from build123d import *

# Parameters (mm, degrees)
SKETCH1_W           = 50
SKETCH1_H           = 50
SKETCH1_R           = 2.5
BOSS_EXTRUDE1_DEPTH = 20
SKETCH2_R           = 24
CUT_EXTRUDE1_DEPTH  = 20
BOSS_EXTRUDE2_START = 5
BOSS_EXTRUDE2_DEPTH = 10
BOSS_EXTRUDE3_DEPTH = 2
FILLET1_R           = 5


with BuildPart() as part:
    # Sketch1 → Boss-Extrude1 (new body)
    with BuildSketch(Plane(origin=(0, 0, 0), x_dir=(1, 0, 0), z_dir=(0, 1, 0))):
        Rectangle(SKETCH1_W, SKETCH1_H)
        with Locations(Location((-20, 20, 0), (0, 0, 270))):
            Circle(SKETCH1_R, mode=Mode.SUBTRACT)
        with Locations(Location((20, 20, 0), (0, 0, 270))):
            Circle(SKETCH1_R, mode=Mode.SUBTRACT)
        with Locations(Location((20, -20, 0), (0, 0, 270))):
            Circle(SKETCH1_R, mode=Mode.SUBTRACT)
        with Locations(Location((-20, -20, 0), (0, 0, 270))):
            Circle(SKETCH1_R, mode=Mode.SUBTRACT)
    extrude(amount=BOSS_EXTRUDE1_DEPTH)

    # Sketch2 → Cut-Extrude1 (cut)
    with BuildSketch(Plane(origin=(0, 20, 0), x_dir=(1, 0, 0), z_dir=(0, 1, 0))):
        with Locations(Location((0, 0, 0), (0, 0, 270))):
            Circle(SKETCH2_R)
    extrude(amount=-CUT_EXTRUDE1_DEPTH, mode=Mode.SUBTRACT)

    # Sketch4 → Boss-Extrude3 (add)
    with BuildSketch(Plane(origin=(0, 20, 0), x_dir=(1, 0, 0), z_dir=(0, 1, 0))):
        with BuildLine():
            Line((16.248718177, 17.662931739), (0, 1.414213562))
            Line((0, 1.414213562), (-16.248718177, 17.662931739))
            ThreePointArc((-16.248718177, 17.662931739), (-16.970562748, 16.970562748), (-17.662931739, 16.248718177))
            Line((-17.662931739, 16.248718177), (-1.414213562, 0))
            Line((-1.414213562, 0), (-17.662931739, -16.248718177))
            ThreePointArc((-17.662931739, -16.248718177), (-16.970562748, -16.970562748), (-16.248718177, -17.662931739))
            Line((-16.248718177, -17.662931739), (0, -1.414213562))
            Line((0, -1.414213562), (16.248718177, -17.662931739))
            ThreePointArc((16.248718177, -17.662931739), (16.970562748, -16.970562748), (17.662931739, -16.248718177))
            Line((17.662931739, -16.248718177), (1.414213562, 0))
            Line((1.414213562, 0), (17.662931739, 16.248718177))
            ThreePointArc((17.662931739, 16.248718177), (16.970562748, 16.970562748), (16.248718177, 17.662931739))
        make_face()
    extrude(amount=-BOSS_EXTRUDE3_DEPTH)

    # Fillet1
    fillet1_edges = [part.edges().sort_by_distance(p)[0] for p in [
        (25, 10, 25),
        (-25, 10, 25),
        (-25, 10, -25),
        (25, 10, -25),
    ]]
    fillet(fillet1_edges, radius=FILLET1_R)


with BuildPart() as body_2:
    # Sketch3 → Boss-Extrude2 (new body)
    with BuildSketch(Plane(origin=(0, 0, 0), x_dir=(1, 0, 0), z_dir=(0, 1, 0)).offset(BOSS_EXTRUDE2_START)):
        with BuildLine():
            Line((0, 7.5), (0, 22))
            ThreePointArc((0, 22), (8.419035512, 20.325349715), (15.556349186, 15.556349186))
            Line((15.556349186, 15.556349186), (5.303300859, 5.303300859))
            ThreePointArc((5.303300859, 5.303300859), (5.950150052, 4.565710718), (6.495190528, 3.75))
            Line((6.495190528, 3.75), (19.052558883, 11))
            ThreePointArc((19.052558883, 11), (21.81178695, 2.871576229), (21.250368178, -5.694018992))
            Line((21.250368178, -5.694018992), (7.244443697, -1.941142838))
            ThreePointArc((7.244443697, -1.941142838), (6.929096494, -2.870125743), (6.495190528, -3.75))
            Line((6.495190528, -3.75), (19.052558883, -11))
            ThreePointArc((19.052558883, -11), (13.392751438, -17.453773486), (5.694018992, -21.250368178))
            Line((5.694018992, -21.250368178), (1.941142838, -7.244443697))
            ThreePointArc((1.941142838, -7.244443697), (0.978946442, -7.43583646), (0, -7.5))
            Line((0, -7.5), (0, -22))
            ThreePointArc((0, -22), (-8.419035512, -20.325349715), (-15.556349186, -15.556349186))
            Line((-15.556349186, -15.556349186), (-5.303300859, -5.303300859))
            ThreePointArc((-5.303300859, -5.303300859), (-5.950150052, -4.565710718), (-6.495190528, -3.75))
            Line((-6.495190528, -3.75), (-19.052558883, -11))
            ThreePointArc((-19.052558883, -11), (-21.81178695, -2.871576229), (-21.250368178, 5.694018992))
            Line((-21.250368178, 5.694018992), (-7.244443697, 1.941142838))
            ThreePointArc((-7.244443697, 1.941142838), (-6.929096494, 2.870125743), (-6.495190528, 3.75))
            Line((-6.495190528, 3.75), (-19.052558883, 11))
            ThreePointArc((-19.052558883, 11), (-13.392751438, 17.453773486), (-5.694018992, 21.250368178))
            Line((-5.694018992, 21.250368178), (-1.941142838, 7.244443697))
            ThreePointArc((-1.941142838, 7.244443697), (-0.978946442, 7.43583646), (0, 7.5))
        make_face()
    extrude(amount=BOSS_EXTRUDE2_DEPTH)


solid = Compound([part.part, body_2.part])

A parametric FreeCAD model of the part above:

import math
import FreeCAD as App
import Part
import Sketcher

V = App.Vector
Q = App.Units.Quantity


def edges_at(feature, points):
    """Names of the edges that pass closest to the given points."""
    edges = feature.Shape.Edges
    near = lambda p: min(range(len(edges)), key=lambda i: edges[i].distToShape(Part.Vertex(*p))[0])
    return sorted({f"Edge{near(p) + 1}" for p in points})


def add_polygon(sketch, points):
    """Adds a closed chain of lines whose ends are joined by coincident constraints."""
    first, n = sketch.GeometryCount, len(points)
    for a, b in zip(points, points[1:] + points[:1]):
        sketch.addGeometry(Part.LineSegment(App.Vector(*a, 0), App.Vector(*b, 0)), False)
    for i in range(n):
        sketch.addConstraint(Sketcher.Constraint("Coincident", first + i, 2, first + (i + 1) % n, 1))

doc = App.newDocument("Part")
params = doc.addObject("Spreadsheet::Sheet", "Params")
for row, (alias, value) in enumerate([
    ("sketch1_diameter", "5 mm"),
    ("sketch1_width", "50 mm"),
    ("pad1_length", "20 mm"),
    ("sketch2_diameter", "48 mm"),
    ("pocket1_length", "20 mm"),
    ("sketch3_radius", "24.000001 mm"),
    ("pad2_length", "2 mm"),
    ("fillet_radius", "5 mm"),
    ("sketch4_radius", "22 mm"),
    ("sketch4_radius2", "7.5 mm"),
    ("pad3_length", "10 mm"),
], start=1):
    params.set(f"A{row}", alias)
    params.set(f"B{row}", "=" + value)
    params.setAlias(f"B{row}", alias)

body = doc.addObject("PartDesign::Body", "Body")

# Sketch on XZ plane
sketch1 = body.newObject("Sketcher::SketchObject", "Sketch")
sketch1.AttachmentSupport = (doc.getObject("XZ_Plane"), [""])
sketch1.MapMode = "FlatFace"
add_polygon(sketch1, [(-25, -25), (-25, 25), (25, 25), (25, -25)])  # lines 0-3
sketch1.addGeometry(Part.Circle(V(-20, 20, 0), V(0, 0, 1), 2.5), False)  # 4
sketch1.addGeometry(Part.Circle(V(20, 20, 0), V(0, 0, 1), 2.5), False)  # 5
sketch1.addGeometry(Part.Circle(V(-20, -20, 0), V(0, 0, 1), 2.5), False)  # 6
sketch1.addGeometry(Part.Circle(V(20, -20, 0), V(0, 0, 1), 2.5), False)  # 7
sketch1.addConstraint([
    Sketcher.Constraint("Vertical", 0),
    Sketcher.Constraint("Horizontal", 1),
    Sketcher.Constraint("Vertical", 2),
    Sketcher.Constraint("Horizontal", 3),
    Sketcher.Constraint("Equal", 4, 5),
    Sketcher.Constraint("Equal", 5, 6),
    Sketcher.Constraint("Equal", 6, 7),
    Sketcher.Constraint("Symmetric", 5, 3, 6, 3, -1, 1),
    Sketcher.Constraint("Symmetric", 4, 3, 7, 3, -1, 1),
    Sketcher.Constraint("Symmetric", 0, 2, 2, 2, -1, 1),
    Sketcher.Constraint("Symmetric", 4, 3, 5, 3, -2),
    Sketcher.Constraint("Equal", 3, 0),
    Sketcher.Constraint("Diameter", 4, 5.0),
    Sketcher.Constraint("DistanceX", 1, 1, 1, 2, 50.0),
    Sketcher.Constraint("DistanceX", 4, 3, -1, 1, 20.0),
    Sketcher.Constraint("DistanceY", -1, 1, 4, 3, 20.0),
])
sketch1.setExpression("Constraints[16]", "Params.sketch1_diameter")
sketch1.setExpression("Constraints[17]", "Params.sketch1_width")
pad1 = body.newObject("PartDesign::Pad", "Pad")
pad1.Profile = sketch1
pad1.setExpression("Length", "Params.pad1_length")
pad1.Reversed = True

# Sketch on XZ plane
sketch2 = body.newObject("Sketcher::SketchObject", "Sketch001")
sketch2.AttachmentSupport = (doc.getObject("XZ_Plane"), [""])
sketch2.MapMode = "FlatFace"
sketch2.AttachmentOffset = App.Placement(V(0, 0, -20), App.Rotation())
sketch2.addGeometry(Part.Circle(V(0, 0, 0), V(0, 0, 1), 24), False)
sketch2.addConstraint([
    Sketcher.Constraint("Coincident", 0, 3, -1, 1),
    Sketcher.Constraint("Diameter", 0, 48.0),
])
sketch2.setExpression("Constraints[1]", "Params.sketch2_diameter")
pocket1 = body.newObject("PartDesign::Pocket", "Pocket")
pocket1.Profile = sketch2
pocket1.setExpression("Length", "Params.pocket1_length")
pocket1.Reversed = True

# Sketch on XZ plane
sketch3 = body.newObject("Sketcher::SketchObject", "Sketch002")
sketch3.AttachmentSupport = (doc.getObject("XZ_Plane"), [""])
sketch3.MapMode = "FlatFace"
sketch3.AttachmentOffset = App.Placement(V(0, 0, -20), App.Rotation())
sketch3.addGeometry([
    Part.LineSegment(V(16.248718, -17.662932, 0), V(0, -1.414214, 0)),  # 0
    Part.LineSegment(V(0, -1.414214, 0), V(-16.248718, -17.662932, 0)),  # 1
    Part.ArcOfCircle(Part.Circle(V(0.000001, 0.000001, 0), V(0, 0, 1), 24.000001), math.radians(-137.388015), math.radians(-132.611985)),  # 2
    Part.LineSegment(V(-17.662932, -16.248718, 0), V(-1.414214, 0, 0)),  # 3
    Part.LineSegment(V(-1.414214, 0, 0), V(-17.662932, 16.248718, 0)),  # 4
    Part.ArcOfCircle(Part.Circle(V(0.000001, -0.000001, 0), V(0, 0, 1), 24.000001), math.radians(132.611985), math.radians(137.388015)),  # 5
    Part.LineSegment(V(-16.248718, 17.662932, 0), V(0, 1.414214, 0)),  # 6
    Part.LineSegment(V(0, 1.414214, 0), V(16.248718, 17.662932, 0)),  # 7
    Part.ArcOfCircle(Part.Circle(V(-0.000001, -0.000001, 0), V(0, 0, 1), 24.000001), math.radians(42.611985), math.radians(47.388015)),  # 8
    Part.LineSegment(V(17.662932, 16.248718, 0), V(1.414214, 0, 0)),  # 9
    Part.LineSegment(V(1.414214, 0, 0), V(17.662932, -16.248718, 0)),  # 10
    Part.ArcOfCircle(Part.Circle(V(-0.000001, 0.000001, 0), V(0, 0, 1), 24.000001), math.radians(-47.388015), math.radians(-42.611985)),  # 11
], False)
sketch3.addConstraint([
    Sketcher.Constraint("Coincident", 0, 2, 1, 1),
    Sketcher.Constraint("Coincident", 1, 2, 2, 2),
    Sketcher.Constraint("Coincident", 2, 1, 3, 1),
    Sketcher.Constraint("Coincident", 3, 2, 4, 1),
    Sketcher.Constraint("Coincident", 4, 2, 5, 2),
    Sketcher.Constraint("Coincident", 5, 1, 6, 1),
    Sketcher.Constraint("Coincident", 6, 2, 7, 1),
    Sketcher.Constraint("Coincident", 7, 2, 8, 2),
    Sketcher.Constraint("Coincident", 8, 1, 9, 1),
    Sketcher.Constraint("Coincident", 9, 2, 10, 1),
    Sketcher.Constraint("Coincident", 10, 2, 11, 2),
    Sketcher.Constraint("Coincident", 11, 1, 0, 1),
    Sketcher.Constraint("Coincident", 2, 3, -1, 1),
    Sketcher.Constraint("Coincident", 5, 3, -1, 1),
    Sketcher.Constraint("Coincident", 8, 3, -1, 1),
    Sketcher.Constraint("Coincident", 11, 3, -1, 1),
    Sketcher.Constraint("Equal", 2, 5),
    Sketcher.Constraint("Equal", 5, 8),
    Sketcher.Constraint("Equal", 8, 11),
    Sketcher.Constraint("Symmetric", 0, 2, 6, 2, -1, 1),
    Sketcher.Constraint("Symmetric", 3, 2, 9, 2, -1, 1),
    Sketcher.Constraint("PointOnObject", 0, 2, -2),
    Sketcher.Constraint("PointOnObject", 3, 2, -1),
    Sketcher.Constraint("Perpendicular", 0, 1),
    Sketcher.Constraint("Parallel", 1, 3),
    Sketcher.Constraint("Perpendicular", 3, 4),
    Sketcher.Constraint("Parallel", 4, 6),
    Sketcher.Constraint("Perpendicular", 6, 7),
    Sketcher.Constraint("Parallel", 7, 9),
    Sketcher.Constraint("Perpendicular", 9, 10),
    Sketcher.Constraint("Horizontal", 5, 1, 7, 2),
    Sketcher.Constraint("Equal", 1, 3),
    Sketcher.Constraint("Radius", 2, 24.000001),
    Sketcher.Constraint("DistanceX", 1, 2, -1, 1, 16.248718),
])
sketch3.setExpression("Constraints[32]", "Params.sketch3_radius")
pad2 = body.newObject("PartDesign::Pad", "Pad001")
pad2.Profile = sketch3
pad2.setExpression("Length", "Params.pad2_length")
doc.recompute()

fillet = body.newObject("PartDesign::Fillet", "Fillet")
fillet.Base = (pad2, edges_at(pad2, [
    (25, 10, 25),
    (-25, 10, 25),
    (-25, 10, -25),
    (25, 10, -25),
]))
fillet.setExpression("Radius", "Params.fillet_radius")
body2 = doc.addObject("PartDesign::Body", "Body001")

# Sketch on XZ plane
sketch4 = body2.newObject("Sketcher::SketchObject", "Sketch003")
sketch4.AttachmentSupport = (doc.getObject("XZ_Plane001"), [""])
sketch4.MapMode = "FlatFace"
sketch4.AttachmentOffset = App.Placement(V(0, 0, -5), App.Rotation())
sketch4.addGeometry([
    Part.LineSegment(V(0, -22, 0), V(0, -7.5, 0)),  # 0
    Part.ArcOfCircle(Part.Circle(V(0, 0, 0), V(0, 0, 1), 7.5), math.radians(-105), math.radians(-90)),  # 1
    Part.LineSegment(V(-1.941143, -7.244444, 0), V(-5.694019, -21.250368, 0)),  # 2
    Part.ArcOfCircle(Part.Circle(V(0, 0, 0), V(0, 0, 1), 22), math.radians(-150), math.radians(-105)),  # 3
    Part.LineSegment(V(-19.052559, -11, 0), V(-6.495191, -3.75, 0)),  # 4
    Part.ArcOfCircle(Part.Circle(V(0, 0, 0), V(0, 0, 1), 7.5), math.radians(-165), math.radians(-150)),  # 5
    Part.LineSegment(V(-7.244444, -1.941143, 0), V(-21.250368, -5.694019, 0)),  # 6
    Part.ArcOfCircle(Part.Circle(V(0, 0, 0), V(0, 0, 1), 22), math.radians(150), math.radians(195)),  # 7
    Part.LineSegment(V(-19.052559, 11, 0), V(-6.495191, 3.75, 0)),  # 8
    Part.ArcOfCircle(Part.Circle(V(0, 0, 0), V(0, 0, 1), 7.5), math.radians(135), math.radians(150)),  # 9
    Part.LineSegment(V(-5.303301, 5.303301, 0), V(-15.556349, 15.556349, 0)),  # 10
    Part.ArcOfCircle(Part.Circle(V(0, 0, 0), V(0, 0, 1), 22), math.radians(90), math.radians(135)),  # 11
    Part.LineSegment(V(0, 22, 0), V(0, 7.5, 0)),  # 12
    Part.ArcOfCircle(Part.Circle(V(0, 0, 0), V(0, 0, 1), 7.5), math.radians(75), math.radians(90)),  # 13
    Part.LineSegment(V(1.941143, 7.244444, 0), V(5.694019, 21.250368, 0)),  # 14
    Part.ArcOfCircle(Part.Circle(V(0, 0, 0), V(0, 0, 1), 22), math.radians(30), math.radians(75)),  # 15
    Part.LineSegment(V(19.052559, 11, 0), V(6.495191, 3.75, 0)),  # 16
    Part.ArcOfCircle(Part.Circle(V(0, 0, 0), V(0, 0, 1), 7.5), math.radians(15), math.radians(30)),  # 17
    Part.LineSegment(V(7.244444, 1.941143, 0), V(21.250368, 5.694019, 0)),  # 18
    Part.ArcOfCircle(Part.Circle(V(0, 0, 0), V(0, 0, 1), 22), math.radians(-30), math.radians(15)),  # 19
    Part.LineSegment(V(19.052559, -11, 0), V(6.495191, -3.75, 0)),  # 20
    Part.ArcOfCircle(Part.Circle(V(0, 0, 0), V(0, 0, 1), 7.5), math.radians(-45), math.radians(-30)),  # 21
    Part.LineSegment(V(5.303301, -5.303301, 0), V(15.556349, -15.556349, 0)),  # 22
    Part.ArcOfCircle(Part.Circle(V(0, 0, 0), V(0, 0, 1), 22), math.radians(-90), math.radians(-45)),  # 23
], False)
sketch4.addConstraint([
    Sketcher.Constraint("Coincident", 0, 2, 1, 2),
    Sketcher.Constraint("Coincident", 1, 1, 2, 1),
    Sketcher.Constraint("Coincident", 2, 2, 3, 2),
    Sketcher.Constraint("Coincident", 3, 1, 4, 1),
    Sketcher.Constraint("Coincident", 4, 2, 5, 2),
    Sketcher.Constraint("Coincident", 5, 1, 6, 1),
    Sketcher.Constraint("Coincident", 6, 2, 7, 2),
    Sketcher.Constraint("Coincident", 7, 1, 8, 1),
    Sketcher.Constraint("Coincident", 8, 2, 9, 2),
    Sketcher.Constraint("Coincident", 9, 1, 10, 1),
    Sketcher.Constraint("Coincident", 10, 2, 11, 2),
    Sketcher.Constraint("Coincident", 11, 1, 12, 1),
    Sketcher.Constraint("Coincident", 12, 2, 13, 2),
    Sketcher.Constraint("Coincident", 13, 1, 14, 1),
    Sketcher.Constraint("Coincident", 14, 2, 15, 2),
    Sketcher.Constraint("Coincident", 15, 1, 16, 1),
    Sketcher.Constraint("Coincident", 16, 2, 17, 2),
    Sketcher.Constraint("Coincident", 17, 1, 18, 1),
    Sketcher.Constraint("Coincident", 18, 2, 19, 2),
    Sketcher.Constraint("Coincident", 19, 1, 20, 1),
    Sketcher.Constraint("Coincident", 20, 2, 21, 2),
    Sketcher.Constraint("Coincident", 21, 1, 22, 1),
    Sketcher.Constraint("Coincident", 22, 2, 23, 2),
    Sketcher.Constraint("Coincident", 23, 1, 0, 1),
    Sketcher.Constraint("Vertical", 0),
    Sketcher.Constraint("Vertical", 12),
    Sketcher.Constraint("Coincident", 1, 3, -1, 1),
    Sketcher.Constraint("Coincident", 3, 3, -1, 1),
    Sketcher.Constraint("Coincident", 5, 3, -1, 1),
    Sketcher.Constraint("Coincident", 7, 3, -1, 1),
    Sketcher.Constraint("Coincident", 9, 3, -1, 1),
    Sketcher.Constraint("Coincident", 11, 3, -1, 1),
    Sketcher.Constraint("Coincident", 13, 3, -1, 1),
    Sketcher.Constraint("Coincident", 15, 3, -1, 1),
    Sketcher.Constraint("Coincident", 17, 3, -1, 1),
    Sketcher.Constraint("Coincident", 19, 3, -1, 1),
    Sketcher.Constraint("Coincident", 21, 3, -1, 1),
    Sketcher.Constraint("Coincident", 23, 3, -1, 1),
    Sketcher.Constraint("Equal", 1, 5),
    Sketcher.Constraint("Equal", 3, 7),
    Sketcher.Constraint("Equal", 5, 9),
    Sketcher.Constraint("Equal", 7, 11),
    Sketcher.Constraint("Equal", 9, 13),
    Sketcher.Constraint("Equal", 11, 15),
    Sketcher.Constraint("Equal", 13, 17),
    Sketcher.Constraint("Equal", 15, 19),
    Sketcher.Constraint("Equal", 17, 21),
    Sketcher.Constraint("Equal", 19, 23),
    Sketcher.Constraint("PointOnObject", 0, 2, -2),
    Sketcher.Constraint("PointOnObject", 11, 1, -2),
    Sketcher.Constraint("Parallel", 2, 14),
    Sketcher.Constraint("Parallel", 4, 16),
    Sketcher.Constraint("Parallel", 6, 18),
    Sketcher.Constraint("Parallel", 8, 20),
    Sketcher.Constraint("Parallel", 10, 22),
    Sketcher.Constraint("Horizontal", 7, 1, 15, 1),
    Sketcher.Constraint("Horizontal", 8, 2, 16, 2),
    Sketcher.Constraint("Horizontal", 3, 1, 19, 1),
    Sketcher.Constraint("Vertical", 3, 1, 7, 1),
    Sketcher.Constraint("Radius", 3, 22.0),
    Sketcher.Constraint("Radius", 1, 7.5),
    Sketcher.Constraint("Angle", 2, Q("-105 deg")),
    Sketcher.Constraint("Angle", 4, Q("30 deg")),
    Sketcher.Constraint("Angle", 6, Q("-165 deg")),
    Sketcher.Constraint("Angle", 10, Q("135 deg")),
    Sketcher.Constraint("DistanceY", 3, 1, -1, 1, 11.0),
    Sketcher.Constraint("DistanceX", 9, 1, -1, 1, 5.303301),
    Sketcher.Constraint("DistanceX", -1, 1, 21, 1, 5.303301),
    Sketcher.Constraint("DistanceX", 1, 1, 19, 1, 20.993702),
    Sketcher.Constraint("DistanceX", 6, 2, -1, 1, 21.250368),
    Sketcher.Constraint("DistanceX", -1, 1, 14, 2, 5.694019),
    Sketcher.Constraint("DistanceX", -1, 1, 18, 2, 21.250368),
])
sketch4.setExpression("Constraints[59]", "Params.sketch4_radius")
sketch4.setExpression("Constraints[60]", "Params.sketch4_radius2")
pad3 = body2.newObject("PartDesign::Pad", "Pad002")
pad3.Profile = sketch4
pad3.setExpression("Length", "Params.pad3_length")
pad3.Reversed = True

doc.recompute()
